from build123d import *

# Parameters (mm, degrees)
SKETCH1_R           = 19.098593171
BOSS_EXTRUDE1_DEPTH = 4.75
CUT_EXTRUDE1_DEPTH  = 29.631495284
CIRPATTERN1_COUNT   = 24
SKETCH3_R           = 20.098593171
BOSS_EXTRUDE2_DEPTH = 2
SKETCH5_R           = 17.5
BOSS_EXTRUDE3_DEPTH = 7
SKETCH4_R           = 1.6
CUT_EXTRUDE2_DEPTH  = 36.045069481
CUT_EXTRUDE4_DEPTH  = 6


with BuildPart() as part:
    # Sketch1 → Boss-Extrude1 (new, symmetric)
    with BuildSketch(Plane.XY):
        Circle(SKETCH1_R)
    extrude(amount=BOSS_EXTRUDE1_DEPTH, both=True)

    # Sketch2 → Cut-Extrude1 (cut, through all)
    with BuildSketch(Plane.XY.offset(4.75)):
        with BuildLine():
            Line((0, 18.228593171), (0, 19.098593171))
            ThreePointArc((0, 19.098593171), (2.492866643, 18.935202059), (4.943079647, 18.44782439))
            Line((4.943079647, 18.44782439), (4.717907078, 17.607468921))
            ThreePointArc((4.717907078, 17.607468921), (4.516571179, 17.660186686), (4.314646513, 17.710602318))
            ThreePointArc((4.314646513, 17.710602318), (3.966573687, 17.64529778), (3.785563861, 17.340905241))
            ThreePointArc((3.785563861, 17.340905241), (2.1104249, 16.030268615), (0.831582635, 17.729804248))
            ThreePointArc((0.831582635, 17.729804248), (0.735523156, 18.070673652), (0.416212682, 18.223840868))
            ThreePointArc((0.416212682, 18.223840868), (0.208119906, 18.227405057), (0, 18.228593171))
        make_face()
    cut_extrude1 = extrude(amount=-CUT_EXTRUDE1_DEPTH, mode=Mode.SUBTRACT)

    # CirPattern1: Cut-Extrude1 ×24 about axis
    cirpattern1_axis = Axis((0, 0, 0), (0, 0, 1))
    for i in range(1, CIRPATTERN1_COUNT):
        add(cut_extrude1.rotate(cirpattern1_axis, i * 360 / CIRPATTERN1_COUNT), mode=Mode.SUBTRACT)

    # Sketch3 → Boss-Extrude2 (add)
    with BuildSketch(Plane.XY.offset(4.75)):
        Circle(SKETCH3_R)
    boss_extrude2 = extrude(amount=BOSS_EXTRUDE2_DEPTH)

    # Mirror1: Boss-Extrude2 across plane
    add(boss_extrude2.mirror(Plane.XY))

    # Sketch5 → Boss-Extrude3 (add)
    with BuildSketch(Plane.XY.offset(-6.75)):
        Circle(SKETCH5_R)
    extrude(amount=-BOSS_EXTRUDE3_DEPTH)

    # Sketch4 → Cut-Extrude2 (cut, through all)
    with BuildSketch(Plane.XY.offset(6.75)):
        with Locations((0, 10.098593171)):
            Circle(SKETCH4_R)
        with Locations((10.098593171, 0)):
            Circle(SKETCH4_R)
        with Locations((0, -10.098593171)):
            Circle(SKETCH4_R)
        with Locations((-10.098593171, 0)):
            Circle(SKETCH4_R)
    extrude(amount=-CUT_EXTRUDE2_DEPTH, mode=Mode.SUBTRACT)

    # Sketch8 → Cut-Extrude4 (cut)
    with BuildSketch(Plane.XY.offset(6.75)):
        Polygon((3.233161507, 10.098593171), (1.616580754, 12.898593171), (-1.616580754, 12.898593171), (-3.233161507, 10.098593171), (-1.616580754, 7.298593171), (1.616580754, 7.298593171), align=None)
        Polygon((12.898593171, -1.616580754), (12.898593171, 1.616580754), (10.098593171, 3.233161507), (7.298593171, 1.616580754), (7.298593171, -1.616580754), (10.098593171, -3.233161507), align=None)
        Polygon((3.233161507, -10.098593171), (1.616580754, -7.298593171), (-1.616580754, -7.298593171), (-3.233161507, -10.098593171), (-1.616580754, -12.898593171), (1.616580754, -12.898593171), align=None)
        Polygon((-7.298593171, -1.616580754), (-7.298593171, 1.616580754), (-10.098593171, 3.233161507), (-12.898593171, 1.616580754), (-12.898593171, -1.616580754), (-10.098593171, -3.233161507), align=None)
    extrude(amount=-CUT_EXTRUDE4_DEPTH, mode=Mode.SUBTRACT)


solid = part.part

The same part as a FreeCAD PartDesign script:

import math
import FreeCAD as App
import Part
import Sketcher
Q = App.Units.Quantity

doc = App.newDocument("Part")
body = doc.addObject("PartDesign::Body", "Body")

sketch1 = body.newObject("Sketcher::SketchObject", "Sketch")
sketch1.AttachmentSupport = (doc.getObject("XY_Plane"), [""])
sketch1.MapMode = "FlatFace"
sketch1.addGeometry(Part.Circle(App.Vector(0, 0, 0), App.Vector(0, 0, 1), 19), False)
sketch1.addConstraint([
    Sketcher.Constraint("Coincident", 0, 3, -1, 1),
    Sketcher.Constraint("Diameter", 0, Q("38.197186 mm")),
])
pad1 = body.newObject("PartDesign::Pad", "Pad")
pad1.Profile = sketch1
pad1.Length = 9.5
pad1.Midplane = True

sketch2 = body.newObject("Sketcher::SketchObject", "Sketch001")
sketch2.AttachmentSupport = (doc.getObject("XY_Plane"), [""])
sketch2.MapMode = "FlatFace"
sketch2.AttachmentOffset = App.Placement(App.Vector(0, 0, 4.75), App.Rotation())
sketch2.addGeometry([
    Part.LineSegment(App.Vector(0, 19.1, 0), App.Vector(0, 18.23, 0)),
    Part.ArcOfCircle(Part.Circle(App.Vector(0, 0, 0), App.Vector(0, 0, 1), 18.23), math.radians(88.69), math.radians(90)),
    Part.ArcOfCircle(Part.Circle(App.Vector(0.41, 17.79, 0), App.Vector(0, 0, 1), 0.43), math.radians(-9), math.radians(89)),
    Part.ArcOfCircle(Part.Circle(App.Vector(2.3, 17.51, 0), App.Vector(0, 0, 1), 1.49), math.radians(171), math.radians(354)),
    Part.ArcOfCircle(Part.Circle(App.Vector(4.21, 17.29, 0), App.Vector(0, 0, 1), 0.43), math.radians(76), math.radians(174)),
    Part.ArcOfCircle(Part.Circle(App.Vector(0, 0, 0), App.Vector(0, 0, 1), 18.23), math.radians(75), math.radians(76.31)),
    Part.LineSegment(App.Vector(4.72, 17.61, 0), App.Vector(4.94, 18.45, 0)),
    Part.ArcOfCircle(Part.Circle(App.Vector(0, 0, 0), App.Vector(0, 0, 1), 19.1), math.radians(75), math.radians(90)),
], False)
sketch2.addConstraint([
    Sketcher.Constraint("Coincident", 0, 2, 1, 2),
    Sketcher.Constraint("Tangent", 1, 1, 2, 2),
    Sketcher.Constraint("Tangent", 2, 1, 3, 1),
    Sketcher.Constraint("Tangent", 3, 2, 4, 2),
    Sketcher.Constraint("Tangent", 4, 1, 5, 2),
    Sketcher.Constraint("Coincident", 5, 1, 6, 1),
    Sketcher.Constraint("Coincident", 6, 2, 7, 1),
    Sketcher.Constraint("Coincident", 7, 2, 0, 1),
    Sketcher.Constraint("Vertical", 0),
    Sketcher.Constraint("Coincident", 1, 3, -1, 1),
    Sketcher.Constraint("Coincident", 5, 3, -1, 1),
    Sketcher.Constraint("Coincident", 7, 3, -1, 1),
    Sketcher.Constraint("Equal", 2, 4),
    Sketcher.Constraint("PointOnObject", 0, 2, -2),
    Sketcher.Constraint("Angle", 6, Q("75 deg")),
    Sketcher.Constraint("Radius", 2, Q("0.43 mm")),
    Sketcher.Constraint("Radius", 3, Q("1.49 mm")),
    Sketcher.Constraint("DistanceY", 0, 2, 0, 1, Q("0.87 mm")),
    Sketcher.Constraint("Distance", 6, Q("0.87 mm")),
    Sketcher.Constraint("Radius", 1, Q("18.228584 mm")),
    Sketcher.Constraint("DistanceX", 3, 3, 5, 1, Q("2.412998 mm")),
    Sketcher.Constraint("DistanceY", 4, 3, 3, 3, Q("0.2147 mm")),
    Sketcher.Constraint("DistanceY", 3, 2, 2, 1, Q("0.388899 mm")),
])
pocket1 = body.newObject("PartDesign::Pocket", "Pocket")
pocket1.Profile = sketch2
pocket1.Type = "ThroughAll"
doc.recompute()

polarpattern = body.newObject("PartDesign::PolarPattern", "PolarPattern")
polarpattern.Originals = [pocket1]
polarpattern.Axis = (doc.getObject("Z_Axis"), [""])
polarpattern.Angle = 360
polarpattern.Occurrences = 24
body.Tip = polarpattern

sketch3 = body.newObject("Sketcher::SketchObject", "Sketch002")
sketch3.AttachmentSupport = (doc.getObject("XY_Plane"), [""])
sketch3.MapMode = "FlatFace"
sketch3.AttachmentOffset = App.Placement(App.Vector(0, 0, 4.75), App.Rotation())
sketch3.addGeometry(Part.Circle(App.Vector(0, 0, 0), App.Vector(0, 0, 1), 20), False)
sketch3.addConstraint([
    Sketcher.Constraint("Coincident", 0, 3, -1, 1),
    Sketcher.Constraint("Diameter", 0, Q("40.197186 mm")),
])
pad2 = body.newObject("PartDesign::Pad", "Pad001")
pad2.Profile = sketch3
pad2.Length = 2
doc.recompute()

mirrored = body.newObject("PartDesign::Mirrored", "Mirrored")
mirrored.Originals = [pad2]
mirrored.MirrorPlane = (doc.getObject("XY_Plane"), [""])
body.Tip = mirrored

sketch4 = body.newObject("Sketcher::SketchObject", "Sketch003")
sketch4.AttachmentSupport = (doc.getObject("XY_Plane"), [""])
sketch4.MapMode = "FlatFace"
sketch4.AttachmentOffset = App.Placement(App.Vector(0, 0, -6.75), App.Rotation())
sketch4.addGeometry(Part.Circle(App.Vector(0, 0, 0), App.Vector(0, 0, 1), 18), False)
sketch4.addConstraint([
    Sketcher.Constraint("Coincident", 0, 3, -1, 1),
    Sketcher.Constraint("Diameter", 0, Q("35 mm")),
])
pad3 = body.newObject("PartDesign::Pad", "Pad002")
pad3.Profile = sketch4
pad3.Length = 7
pad3.Reversed = True

sketch5 = body.newObject("Sketcher::SketchObject", "Sketch004")
sketch5.AttachmentSupport = (doc.getObject("XY_Plane"), [""])
sketch5.MapMode = "FlatFace"
sketch5.AttachmentOffset = App.Placement(App.Vector(0, 0, 6.75), App.Rotation())
sketch5.addGeometry([
    Part.Circle(App.Vector(0, 10.1, 0), App.Vector(0, 0, 1), 1.6),
    Part.Circle(App.Vector(10.1, 0, 0), App.Vector(0, 0, 1), 1.6),
    Part.Circle(App.Vector(0, -10.1, 0), App.Vector(0, 0, 1), 1.6),
    Part.Circle(App.Vector(-10.1, 0, 0), App.Vector(0, 0, 1), 1.6),
], False)
sketch5.addConstraint([
    Sketcher.Constraint("Equal", 0, 1),
    Sketcher.Constraint("Equal", 1, 2),
    Sketcher.Constraint("Equal", 2, 3),
    Sketcher.Constraint("Symmetric", 0, 3, 2, 3, -1, 1),
    Sketcher.Constraint("Symmetric", 1, 3, 3, 3, -1, 1),
    Sketcher.Constraint("PointOnObject", 0, 3, -2),
    Sketcher.Constraint("PointOnObject", 1, 3, -1),
    Sketcher.Constraint("Diameter", 0, Q("3.2 mm")),
    Sketcher.Constraint("DistanceY", -1, 1, 0, 3, Q("10.098593 mm")),
    Sketcher.Constraint("DistanceX", -1, 1, 1, 3, Q("10.098593 mm")),
])
pocket2 = body.newObject("PartDesign::Pocket", "Pocket001")
pocket2.Profile = sketch5
pocket2.Type = "ThroughAll"

sketch6 = body.newObject("Sketcher::SketchObject", "Sketch005")
sketch6.AttachmentSupport = (doc.getObject("XY_Plane"), [""])
sketch6.MapMode = "FlatFace"
sketch6.AttachmentOffset = App.Placement(App.Vector(0, 0, 6.75), App.Rotation())
sketch6.addGeometry([
    Part.LineSegment(App.Vector(3.2, 10.1, 0), App.Vector(1.6, 12.9, 0)),
    Part.LineSegment(App.Vector(1.6, 12.9, 0), App.Vector(-1.6, 12.9, 0)),
    Part.LineSegment(App.Vector(-1.6, 12.9, 0), App.Vector(-3.2, 10.1, 0)),
    Part.LineSegment(App.Vector(-3.2, 10.1, 0), App.Vector(-1.6, 7.3, 0)),
    Part.LineSegment(App.Vector(-1.6, 7.3, 0), App.Vector(1.6, 7.3, 0)),
    Part.LineSegment(App.Vector(1.6, 7.3, 0), App.Vector(3.2, 10.1, 0)),
    Part.LineSegment(App.Vector(12.9, -1.6, 0), App.Vector(12.9, 1.6, 0)),
    Part.LineSegment(App.Vector(12.9, 1.6, 0), App.Vector(10.1, 3.2, 0)),
    Part.LineSegment(App.Vector(10.1, 3.2, 0), App.Vector(7.3, 1.6, 0)),
    Part.LineSegment(App.Vector(7.3, 1.6, 0), App.Vector(7.3, -1.6, 0)),
    Part.LineSegment(App.Vector(7.3, -1.6, 0), App.Vector(10.1, -3.2, 0)),
    Part.LineSegment(App.Vector(10.1, -3.2, 0), App.Vector(12.9, -1.6, 0)),
    Part.LineSegment(App.Vector(3.2, -10.1, 0), App.Vector(1.6, -7.3, 0)),
    Part.LineSegment(App.Vector(1.6, -7.3, 0), App.Vector(-1.6, -7.3, 0)),
    Part.LineSegment(App.Vector(-1.6, -7.3, 0), App.Vector(-3.2, -10.1, 0)),
    Part.LineSegment(App.Vector(-3.2, -10.1, 0), App.Vector(-1.6, -12.9, 0)),
    Part.LineSegment(App.Vector(-1.6, -12.9, 0), App.Vector(1.6, -12.9, 0)),
    Part.LineSegment(App.Vector(1.6, -12.9, 0), App.Vector(3.2, -10.1, 0)),
    Part.LineSegment(App.Vector(-7.3, -1.6, 0), App.Vector(-7.3, 1.6, 0)),
    Part.LineSegment(App.Vector(-7.3, 1.6, 0), App.Vector(-10.1, 3.2, 0)),
    Part.LineSegment(App.Vector(-10.1, 3.2, 0), App.Vector(-12.9, 1.6, 0)),
    Part.LineSegment(App.Vector(-12.9, 1.6, 0), App.Vector(-12.9, -1.6, 0)),
    Part.LineSegment(App.Vector(-12.9, -1.6, 0), App.Vector(-10.1, -3.2, 0)),
    Part.LineSegment(App.Vector(-10.1, -3.2, 0), App.Vector(-7.3, -1.6, 0)),
], False)
sketch6.addConstraint([
    Sketcher.Constraint("Coincident", 0, 2, 1, 1),
    Sketcher.Constraint("Coincident", 1, 2, 2, 1),
    Sketcher.Constraint("Coincident", 2, 2, 3, 1),
    Sketcher.Constraint("Coincident", 3, 2, 4, 1),
    Sketcher.Constraint("Coincident", 4, 2, 5, 1),
    Sketcher.Constraint("Coincident", 5, 2, 0, 1),
    Sketcher.Constraint("Coincident", 6, 2, 7, 1),
    Sketcher.Constraint("Coincident", 7, 2, 8, 1),
    Sketcher.Constraint("Coincident", 8, 2, 9, 1),
    Sketcher.Constraint("Coincident", 9, 2, 10, 1),
    Sketcher.Constraint("Coincident", 10, 2, 11, 1),
    Sketcher.Constraint("Coincident", 11, 2, 6, 1),
    Sketcher.Constraint("Coincident", 12, 2, 13, 1),
    Sketcher.Constraint("Coincident", 13, 2, 14, 1),
    Sketcher.Constraint("Coincident", 14, 2, 15, 1),
    Sketcher.Constraint("Coincident", 15, 2, 16, 1),
    Sketcher.Constraint("Coincident", 16, 2, 17, 1),
    Sketcher.Constraint("Coincident", 17, 2, 12, 1),
    Sketcher.Constraint("Coincident", 18, 2, 19, 1),
    Sketcher.Constraint("Coincident", 19, 2, 20, 1),
    Sketcher.Constraint("Coincident", 20, 2, 21, 1),
    Sketcher.Constraint("Coincident", 21, 2, 22, 1),
    Sketcher.Constraint("Coincident", 22, 2, 23, 1),
    Sketcher.Constraint("Coincident", 23, 2, 18, 1),
    Sketcher.Constraint("Horizontal", 1),
    Sketcher.Constraint("Horizontal", 4),
    Sketcher.Constraint("Vertical", 6),
    Sketcher.Constraint("Vertical", 9),
    Sketcher.Constraint("Horizontal", 13),
    Sketcher.Constraint("Horizontal", 16),
    Sketcher.Constraint("Vertical", 18),
    Sketcher.Constraint("Vertical", 21),
    Sketcher.Constraint("Symmetric", 3, 2, 12, 2, -1, 1),
    Sketcher.Constraint("Symmetric", 5, 2, 14, 2, -1, 1),
    Sketcher.Constraint("Symmetric", 0, 2, 15, 2, -1, 1),
    Sketcher.Constraint("Symmetric", 2, 2, 17, 2, -1, 1),
    Sketcher.Constraint("Symmetric", 9, 2, 18, 2, -1, 1),
    Sketcher.Constraint("Symmetric", 10, 2, 19, 2, -1, 1),
    Sketcher.Constraint("Symmetric", 11, 2, 20, 2, -1, 1),
    Sketcher.Constraint("Symmetric", 7, 2, 22, 2, -1, 1),
    Sketcher.Constraint("Symmetric", 2, 2, 5, 2, -2),
    Sketcher.Constraint("Symmetric", 7, 2, 19, 2, -2),
    Sketcher.Constraint("Parallel", 0, 3),
    Sketcher.Constraint("Parallel", 2, 5),
    Sketcher.Constraint("Perpendicular", 5, 7),
    Sketcher.Constraint("Perpendicular", 3, 8),
    Sketcher.Constraint("Parallel", 7, 10),
    Sketcher.Constraint("Parallel", 8, 11),
    Sketcher.Constraint("Perpendicular", 10, 14),
    Sketcher.Constraint("Parallel", 14, 17),
    Sketcher.Constraint("Parallel", 19, 22),
    Sketcher.Constraint("Parallel", 20, 23),
    Sketcher.Constraint("Horizontal", 6, 2, 8, 2),
    Sketcher.Constraint("Horizontal", 9, 2, 11, 2),
    Sketcher.Constraint("Vertical", 1, 2, 3, 2),
    Sketcher.Constraint("Equal", 16, 6),
    Sketcher.Constraint("Equal", 5, 7),
    Sketcher.Constraint("Angle", 0, Q("120 deg")),
    Sketcher.Constraint("DistanceY", 2, 2, 1, 2, Q("2.8 mm")),
    Sketcher.Constraint("DistanceX", 1, 2, 1, 1, Q("3.233162 mm")),
    Sketcher.Constraint("DistanceX", 5, 2, 6, 2, Q("9.665432 mm")),
    Sketcher.Constraint("DistanceY", 7, 2, 4, 2, Q("4.065432 mm")),
])
pocket3 = body.newObject("PartDesign::Pocket", "Pocket002")
pocket3.Profile = sketch6
pocket3.Length = 6

doc.recompute()
